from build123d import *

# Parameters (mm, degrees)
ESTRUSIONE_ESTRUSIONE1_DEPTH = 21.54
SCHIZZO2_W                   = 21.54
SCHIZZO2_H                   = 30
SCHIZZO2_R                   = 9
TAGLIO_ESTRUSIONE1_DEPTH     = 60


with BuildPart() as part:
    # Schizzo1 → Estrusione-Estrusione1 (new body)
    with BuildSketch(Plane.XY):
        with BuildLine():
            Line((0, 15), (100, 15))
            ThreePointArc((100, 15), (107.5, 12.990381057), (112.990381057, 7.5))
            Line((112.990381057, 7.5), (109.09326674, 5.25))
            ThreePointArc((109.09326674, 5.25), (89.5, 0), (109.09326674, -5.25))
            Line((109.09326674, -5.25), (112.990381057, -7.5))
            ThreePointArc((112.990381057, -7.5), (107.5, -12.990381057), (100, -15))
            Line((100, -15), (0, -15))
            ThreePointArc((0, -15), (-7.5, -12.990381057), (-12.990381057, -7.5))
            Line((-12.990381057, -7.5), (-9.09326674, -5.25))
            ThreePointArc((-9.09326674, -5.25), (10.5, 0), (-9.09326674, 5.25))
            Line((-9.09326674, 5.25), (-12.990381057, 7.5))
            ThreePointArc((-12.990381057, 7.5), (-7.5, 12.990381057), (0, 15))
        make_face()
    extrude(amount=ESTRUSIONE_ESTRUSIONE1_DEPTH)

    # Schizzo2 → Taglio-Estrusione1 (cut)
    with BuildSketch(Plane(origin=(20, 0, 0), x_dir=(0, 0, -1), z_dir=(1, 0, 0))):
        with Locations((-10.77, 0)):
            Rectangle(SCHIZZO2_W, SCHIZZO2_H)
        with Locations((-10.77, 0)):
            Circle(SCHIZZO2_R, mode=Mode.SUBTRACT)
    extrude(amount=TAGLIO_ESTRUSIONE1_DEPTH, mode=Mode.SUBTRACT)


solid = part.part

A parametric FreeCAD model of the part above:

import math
import FreeCAD as App
import Part
import Sketcher
from FreeCAD import Vector
Q = App.Units.Quantity

doc = App.newDocument("Part")
params = doc.addObject("Spreadsheet::Sheet", "Params")
for row, (alias, value) in enumerate([
    ("sketch1_radius", "15 mm"),
    ("sketch1_radius2", "10.5 mm"),
    ("sketch1_width", "100 mm"),
    ("pad1_length", "21.54 mm"),
    ("sketch2_diameter", "18 mm"),
    ("sketch2_width", "30 mm"),
    ("sketch2_height", "21.54 mm"),
    ("pocket1_length", "60 mm"),
], start=1):
    params.set(f"A{row}", alias)
    params.set(f"B{row}", "=" + value)
    params.setAlias(f"B{row}", alias)

body = doc.addObject("PartDesign::Body", "Body")

sketch1 = doc.addObject("Sketcher::SketchObject", "Sketch")
body.addObject(sketch1)
sketch1.AttachmentSupport = (doc.XY_Plane, [""])
sketch1.MapMode = "FlatFace"
sketch1.addGeometry([
    Part.LineSegment(Vector(100, 15, 0), Vector(0, 15, 0)),
    Part.ArcOfCircle(Part.Circle(Vector(0, 0, 0), Vector(0, 0, 1), 15), math.radians(90), math.radians(150)),
    Part.LineSegment(Vector(-13, 7.5, 0), Vector(-9.1, 5.2, 0)),
    Part.ArcOfCircle(Part.Circle(Vector(0, 0, 0), Vector(0, 0, 1), 10.5), math.radians(-150), math.radians(150)),
    Part.LineSegment(Vector(-9.1, -5.2, 0), Vector(-13, -7.5, 0)),
    Part.ArcOfCircle(Part.Circle(Vector(0, 0, 0), Vector(0, 0, 1), 15), math.radians(-150), math.radians(-90)),
    Part.LineSegment(Vector(0, -15, 0), Vector(100, -15, 0)),
    Part.ArcOfCircle(Part.Circle(Vector(100, 0, 0), Vector(0, 0, 1), 15), math.radians(-90), math.radians(-30)),
    Part.LineSegment(Vector(113, -7.5, 0), Vector(109.1, -5.2, 0)),
    Part.ArcOfCircle(Part.Circle(Vector(100, 0, 0), Vector(0, 0, 1), 10.5), math.radians(30), math.radians(330)),
    Part.LineSegment(Vector(109.1, 5.2, 0), Vector(113, 7.5, 0)),
    Part.ArcOfCircle(Part.Circle(Vector(100, 0, 0), Vector(0, 0, 1), 15), math.radians(30), math.radians(90)),
], False)
sketch1.addConstraint([
    Sketcher.Constraint("Tangent", 0, 2, 1, 1),
    Sketcher.Constraint("Coincident", 1, 2, 2, 1),
    Sketcher.Constraint("Coincident", 2, 2, 3, 2),
    Sketcher.Constraint("Coincident", 3, 1, 4, 1),
    Sketcher.Constraint("Coincident", 4, 2, 5, 1),
    Sketcher.Constraint("Tangent", 5, 2, 6, 1),
    Sketcher.Constraint("Tangent", 6, 2, 7, 1),
    Sketcher.Constraint("Coincident", 7, 2, 8, 1),
    Sketcher.Constraint("Coincident", 8, 2, 9, 2),
    Sketcher.Constraint("Coincident", 9, 1, 10, 1),
    Sketcher.Constraint("Coincident", 10, 2, 11, 1),
    Sketcher.Constraint("Tangent", 11, 2, 0, 1),
    Sketcher.Constraint("Horizontal", 0),
    Sketcher.Constraint("Horizontal", 6),
    Sketcher.Constraint("Coincident", 1, 3, -1, 1),
    Sketcher.Constraint("Coincident", 3, 3, -1, 1),
    Sketcher.Constraint("Coincident", 5, 3, -1, 1),
    Sketcher.Constraint("Coincident", 9, 3, 7, 3),
    Sketcher.Constraint("Coincident", 11, 3, 7, 3),
    Sketcher.Constraint("Equal", 1, 5),
    Sketcher.Constraint("Equal", 5, 7),
    Sketcher.Constraint("Equal", 3, 9),
    Sketcher.Constraint("Parallel", 2, 8),
    Sketcher.Constraint("Parallel", 4, 10),
    Sketcher.Constraint("Horizontal", 4, 2, 7, 2),
    Sketcher.Constraint("Horizontal", 3, 1, 8, 2),
    Sketcher.Constraint("Horizontal", 2, 2, 9, 1),
    Sketcher.Constraint("Vertical", 2, 2, 3, 1),
    Sketcher.Constraint("Radius", 1, 15.0),
    Sketcher.Constraint("Radius", 3, 10.5),
    Sketcher.Constraint("DistanceX", 0, 2, 0, 1, 100.0),
    Sketcher.Constraint("Angle", 2, Q("-30 deg")),
    Sketcher.Constraint("DistanceY", 4, 2, 1, 2, 15.0),
])
sketch1.setExpression("Constraints[28]", "Params.sketch1_radius")
sketch1.setExpression("Constraints[29]", "Params.sketch1_radius2")
sketch1.setExpression("Constraints[30]", "Params.sketch1_width")
pad1 = doc.addObject("PartDesign::Pad", "Pad")
body.addObject(pad1)
pad1.Profile = sketch1
pad1.setExpression("Length", "Params.pad1_length")

sketch2 = doc.addObject("Sketcher::SketchObject", "Sketch001")
body.addObject(sketch2)
sketch2.AttachmentSupport = (doc.YZ_Plane, [""])
sketch2.MapMode = "FlatFace"
sketch2.AttachmentOffset = App.Placement(Vector(0, 0, 20), App.Rotation())
sketch2.addGeometry([
    Part.LineSegment(Vector(15, 22, 0), Vector(-15, 22, 0)),
    Part.LineSegment(Vector(-15, 22, 0), Vector(-15, 0, 0)),
    Part.LineSegment(Vector(-15, 0, 0), Vector(15, 0, 0)),
    Part.LineSegment(Vector(15, 0, 0), Vector(15, 22, 0)),
    Part.Circle(Vector(0, 11, 0), Vector(0, 0, 1), 9),
], False)
sketch2.addConstraint([
    Sketcher.Constraint("Coincident", 0, 2, 1, 1),
    Sketcher.Constraint("Coincident", 1, 2, 2, 1),
    Sketcher.Constraint("Coincident", 2, 2, 3, 1),
    Sketcher.Constraint("Coincident", 3, 2, 0, 1),
    Sketcher.Constraint("Horizontal", 0),
    Sketcher.Constraint("Vertical", 1),
    Sketcher.Constraint("Horizontal", 2),
    Sketcher.Constraint("Vertical", 3),
    Sketcher.Constraint("Symmetric", 1, 2, 2, 2, -1, 1),
    Sketcher.Constraint("PointOnObject", 4, 3, -2),
    Sketcher.Constraint("Diameter", 4, 18.0),
    Sketcher.Constraint("DistanceX", 0, 2, 0, 1, 30.0),
    Sketcher.Constraint("DistanceY", 1, 2, 1, 1, 21.54),
    Sketcher.Constraint("DistanceY", -1, 1, 4, 3, 10.77),
])
sketch2.setExpression("Constraints[10]", "Params.sketch2_diameter")
sketch2.setExpression("Constraints[11]", "Params.sketch2_width")
sketch2.setExpression("Constraints[12]", "Params.sketch2_height")
pocket1 = doc.addObject("PartDesign::Pocket", "Pocket")
body.addObject(pocket1)
pocket1.Profile = sketch2
pocket1.setExpression("Length", "Params.pocket1_length")
pocket1.Reversed = True

doc.recompute()
